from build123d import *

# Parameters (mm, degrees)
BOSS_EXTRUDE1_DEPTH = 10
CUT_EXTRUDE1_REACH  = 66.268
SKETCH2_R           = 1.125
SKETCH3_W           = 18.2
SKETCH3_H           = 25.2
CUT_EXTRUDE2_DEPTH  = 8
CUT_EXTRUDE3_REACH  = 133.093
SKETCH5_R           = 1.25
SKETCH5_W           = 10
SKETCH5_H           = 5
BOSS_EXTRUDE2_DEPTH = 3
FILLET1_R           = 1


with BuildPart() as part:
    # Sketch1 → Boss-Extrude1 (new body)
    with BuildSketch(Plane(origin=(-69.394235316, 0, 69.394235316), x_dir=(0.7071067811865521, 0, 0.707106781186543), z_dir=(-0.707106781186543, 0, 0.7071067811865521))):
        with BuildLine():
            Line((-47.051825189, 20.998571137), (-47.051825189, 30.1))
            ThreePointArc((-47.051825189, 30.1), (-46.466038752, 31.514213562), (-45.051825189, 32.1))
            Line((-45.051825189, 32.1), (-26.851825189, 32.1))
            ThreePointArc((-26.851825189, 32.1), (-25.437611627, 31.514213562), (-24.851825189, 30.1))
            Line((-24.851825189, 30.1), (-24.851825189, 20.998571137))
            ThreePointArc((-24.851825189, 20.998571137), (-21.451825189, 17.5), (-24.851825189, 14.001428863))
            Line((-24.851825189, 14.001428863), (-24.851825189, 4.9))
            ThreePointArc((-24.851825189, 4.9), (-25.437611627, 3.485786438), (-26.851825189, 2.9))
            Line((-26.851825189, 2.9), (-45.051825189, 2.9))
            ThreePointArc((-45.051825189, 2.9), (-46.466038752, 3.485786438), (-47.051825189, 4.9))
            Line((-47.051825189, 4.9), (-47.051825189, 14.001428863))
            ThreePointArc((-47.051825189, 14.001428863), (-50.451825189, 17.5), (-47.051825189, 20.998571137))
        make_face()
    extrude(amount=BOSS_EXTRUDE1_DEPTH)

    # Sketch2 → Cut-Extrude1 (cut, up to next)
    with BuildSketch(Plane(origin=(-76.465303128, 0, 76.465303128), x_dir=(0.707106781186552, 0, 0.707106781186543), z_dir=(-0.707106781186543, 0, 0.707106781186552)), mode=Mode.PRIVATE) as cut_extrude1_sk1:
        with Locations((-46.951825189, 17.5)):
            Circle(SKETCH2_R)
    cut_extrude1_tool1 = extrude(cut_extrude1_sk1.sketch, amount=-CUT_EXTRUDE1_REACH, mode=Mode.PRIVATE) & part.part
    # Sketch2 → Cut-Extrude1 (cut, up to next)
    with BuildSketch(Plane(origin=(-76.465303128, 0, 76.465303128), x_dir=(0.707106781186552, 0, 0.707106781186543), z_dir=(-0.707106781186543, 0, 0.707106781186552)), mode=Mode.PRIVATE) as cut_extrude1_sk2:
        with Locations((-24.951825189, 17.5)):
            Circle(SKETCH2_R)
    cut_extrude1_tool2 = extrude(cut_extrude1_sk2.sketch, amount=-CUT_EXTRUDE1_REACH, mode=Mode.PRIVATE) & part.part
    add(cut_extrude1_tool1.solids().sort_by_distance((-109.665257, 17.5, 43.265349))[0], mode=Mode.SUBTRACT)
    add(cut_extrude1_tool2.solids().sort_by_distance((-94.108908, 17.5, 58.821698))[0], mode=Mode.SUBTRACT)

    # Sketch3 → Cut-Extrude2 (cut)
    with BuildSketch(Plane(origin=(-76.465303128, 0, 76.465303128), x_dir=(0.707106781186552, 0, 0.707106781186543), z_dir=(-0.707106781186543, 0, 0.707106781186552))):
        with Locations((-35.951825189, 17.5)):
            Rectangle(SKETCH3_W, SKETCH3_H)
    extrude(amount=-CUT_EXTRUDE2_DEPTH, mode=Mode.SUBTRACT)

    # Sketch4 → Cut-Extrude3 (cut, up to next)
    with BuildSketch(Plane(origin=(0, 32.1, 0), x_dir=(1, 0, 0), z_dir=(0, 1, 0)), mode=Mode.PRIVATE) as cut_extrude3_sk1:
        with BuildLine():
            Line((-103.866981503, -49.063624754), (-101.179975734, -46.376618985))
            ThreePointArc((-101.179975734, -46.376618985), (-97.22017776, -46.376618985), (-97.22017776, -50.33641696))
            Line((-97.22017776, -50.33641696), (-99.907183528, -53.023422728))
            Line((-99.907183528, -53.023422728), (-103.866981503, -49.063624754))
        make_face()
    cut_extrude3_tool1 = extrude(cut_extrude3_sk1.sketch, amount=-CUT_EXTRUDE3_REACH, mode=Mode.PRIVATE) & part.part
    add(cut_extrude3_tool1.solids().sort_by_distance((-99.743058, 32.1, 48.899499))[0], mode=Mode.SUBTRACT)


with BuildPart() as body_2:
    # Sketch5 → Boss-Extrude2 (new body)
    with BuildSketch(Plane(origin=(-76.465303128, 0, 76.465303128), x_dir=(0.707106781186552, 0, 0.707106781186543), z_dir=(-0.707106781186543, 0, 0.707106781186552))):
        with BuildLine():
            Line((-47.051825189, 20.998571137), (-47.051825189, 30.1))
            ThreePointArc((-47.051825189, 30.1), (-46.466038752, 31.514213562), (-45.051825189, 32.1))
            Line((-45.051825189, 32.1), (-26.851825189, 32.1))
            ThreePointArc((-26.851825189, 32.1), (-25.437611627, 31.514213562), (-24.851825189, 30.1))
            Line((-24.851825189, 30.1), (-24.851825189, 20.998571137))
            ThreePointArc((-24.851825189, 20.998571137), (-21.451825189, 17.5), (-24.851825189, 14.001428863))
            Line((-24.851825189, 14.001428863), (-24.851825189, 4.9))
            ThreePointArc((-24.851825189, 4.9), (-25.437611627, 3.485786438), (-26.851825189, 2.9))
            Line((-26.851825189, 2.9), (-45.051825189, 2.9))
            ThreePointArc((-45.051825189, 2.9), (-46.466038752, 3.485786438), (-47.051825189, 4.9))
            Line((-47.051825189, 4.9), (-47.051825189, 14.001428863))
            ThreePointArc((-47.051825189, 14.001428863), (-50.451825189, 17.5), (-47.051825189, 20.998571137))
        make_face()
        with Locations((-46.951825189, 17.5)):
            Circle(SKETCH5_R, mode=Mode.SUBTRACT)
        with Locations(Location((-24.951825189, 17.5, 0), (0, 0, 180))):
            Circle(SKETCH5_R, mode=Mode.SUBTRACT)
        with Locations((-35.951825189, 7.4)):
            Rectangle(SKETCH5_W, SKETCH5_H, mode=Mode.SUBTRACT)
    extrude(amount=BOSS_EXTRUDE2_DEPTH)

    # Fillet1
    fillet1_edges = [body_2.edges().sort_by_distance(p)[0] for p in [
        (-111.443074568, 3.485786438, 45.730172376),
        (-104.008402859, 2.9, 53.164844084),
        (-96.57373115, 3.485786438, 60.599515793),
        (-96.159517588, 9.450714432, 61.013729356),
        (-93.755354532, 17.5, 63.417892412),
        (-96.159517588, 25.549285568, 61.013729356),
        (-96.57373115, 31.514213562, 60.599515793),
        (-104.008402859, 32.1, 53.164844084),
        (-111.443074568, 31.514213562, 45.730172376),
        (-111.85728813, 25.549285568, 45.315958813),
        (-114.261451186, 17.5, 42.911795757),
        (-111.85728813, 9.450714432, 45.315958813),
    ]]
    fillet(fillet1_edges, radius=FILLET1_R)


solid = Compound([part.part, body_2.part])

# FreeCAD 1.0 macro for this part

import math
import FreeCAD as App
import Part
import Sketcher

V = App.Vector
Q = App.Units.Quantity


def edges_at(feature, points):
    """Names of the edges that pass closest to the given points."""
    edges = feature.Shape.Edges
    near = lambda p: min(range(len(edges)), key=lambda i: edges[i].distToShape(Part.Vertex(*p))[0])
    return sorted({f"Edge{near(p) + 1}" for p in points})


def add_polygon(sketch, points):
    """Adds a closed chain of lines whose ends are joined by coincident constraints."""
    first, n = sketch.GeometryCount, len(points)
    for a, b in zip(points, points[1:] + points[:1]):
        sketch.addGeometry(Part.LineSegment(App.Vector(*a, 0), App.Vector(*b, 0)), False)
    for i in range(n):
        sketch.addConstraint(Sketcher.Constraint("Coincident", first + i, 2, first + (i + 1) % n, 1))

doc = App.newDocument("Part")
params = doc.addObject("Spreadsheet::Sheet", "Params")
for row, (alias, value) in enumerate([
    ("sketch1_radius", "2 mm"),
    ("sketch1_radius2", "3.5 mm"),
    ("sketch1_width", "18.2 mm"),
    ("pad1_length", "10 mm"),
    ("sketch2_diameter", "2.25 mm"),
    ("sketch3_diameter", "2.25 mm"),
    ("sketch4_width", "18.2 mm"),
    ("sketch4_height", "25.2 mm"),
    ("pocket3_length", "8 mm"),
    ("sketch5_radius", "2.8 mm"),
    ("sketch5_length", "3.8 mm"),
    ("sketch6_radius", "2 mm"),
    ("sketch6_diameter", "2.5 mm"),
    ("sketch6_radius2", "3.5 mm"),
    ("sketch6_width", "10 mm"),
    ("sketch6_height", "5 mm"),
    ("pad2_length", "3 mm"),
    ("fillet_radius", "1 mm"),
], start=1):
    params.set(f"A{row}", alias)
    params.set(f"B{row}", "=" + value)
    params.setAlias(f"B{row}", alias)

body = doc.addObject("PartDesign::Body", "Body")

# Sketch on an angled plane
sketch1 = body.newObject("Sketcher::SketchObject", "Sketch")
sketch1.Placement = App.Placement(V(-69.394235, 0, 69.394235), App.Rotation(V(0.707106781, 0, 0.707106781), V(0, 0.999999999, 0), V(-0.707106781, 0, 0.707106781), "ZXY"))
sketch1.addGeometry(Part.LineSegment(V(-47.051825, 30.1, 0), V(-47.051825, 20.998571, 0)), False)
sketch1.addGeometry(Part.ArcOfCircle(Part.Circle(V(-46.951825, 17.5, 0), V(0, 0, 1), 3.5), math.radians(91.637245), math.radians(268.362755)), False)
sketch1.addGeometry(Part.LineSegment(V(-47.051825, 14.001429, 0), V(-47.051825, 4.9, 0)), False)
sketch1.addGeometry(Part.ArcOfCircle(Part.Circle(V(-45.051825, 4.9, 0), V(0, 0, 1), 2), math.radians(180), math.radians(270)), False)
sketch1.addGeometry(Part.LineSegment(V(-45.051825, 2.9, 0), V(-26.851825, 2.9, 0)), False)
sketch1.addGeometry(Part.ArcOfCircle(Part.Circle(V(-26.851825, 4.9, 0), V(0, 0, 1), 2), math.radians(-90), math.radians(0)), False)
sketch1.addGeometry(Part.LineSegment(V(-24.851825, 4.9, 0), V(-24.851825, 14.001429, 0)), False)
sketch1.addGeometry(Part.ArcOfCircle(Part.Circle(V(-24.951825, 17.5, 0), V(0, 0, 1), 3.5), math.radians(-88.362755), math.radians(88.362755)), False)
sketch1.addGeometry(Part.LineSegment(V(-24.851825, 20.998571, 0), V(-24.851825, 30.1, 0)), False)
sketch1.addGeometry(Part.ArcOfCircle(Part.Circle(V(-26.851825, 30.1, 0), V(0, 0, 1), 2), math.radians(0), math.radians(90)), False)
sketch1.addGeometry(Part.LineSegment(V(-26.851825, 32.1, 0), V(-45.051825, 32.1, 0)), False)
sketch1.addGeometry(Part.ArcOfCircle(Part.Circle(V(-45.051825, 30.1, 0), V(0, 0, 1), 2), math.radians(90), math.radians(180)), False)
sketch1.addConstraint(Sketcher.Constraint("Coincident", 0, 2, 1, 1))
sketch1.addConstraint(Sketcher.Constraint("Coincident", 1, 2, 2, 1))
sketch1.addConstraint(Sketcher.Constraint("Tangent", 2, 2, 3, 1))
sketch1.addConstraint(Sketcher.Constraint("Tangent", 3, 2, 4, 1))
sketch1.addConstraint(Sketcher.Constraint("Tangent", 4, 2, 5, 1))
sketch1.addConstraint(Sketcher.Constraint("Tangent", 5, 2, 6, 1))
sketch1.addConstraint(Sketcher.Constraint("Coincident", 6, 2, 7, 1))
sketch1.addConstraint(Sketcher.Constraint("Coincident", 7, 2, 8, 1))
sketch1.addConstraint(Sketcher.Constraint("Tangent", 8, 2, 9, 1))
sketch1.addConstraint(Sketcher.Constraint("Tangent", 9, 2, 10, 1))
sketch1.addConstraint(Sketcher.Constraint("Tangent", 10, 2, 11, 1))
sketch1.addConstraint(Sketcher.Constraint("Tangent", 11, 2, 0, 1))
sketch1.addConstraint(Sketcher.Constraint("Vertical", 0))
sketch1.addConstraint(Sketcher.Constraint("Vertical", 2))
sketch1.addConstraint(Sketcher.Constraint("Horizontal", 4))
sketch1.addConstraint(Sketcher.Constraint("Vertical", 6))
sketch1.addConstraint(Sketcher.Constraint("Vertical", 8))
sketch1.addConstraint(Sketcher.Constraint("Horizontal", 10))
sketch1.addConstraint(Sketcher.Constraint("Equal", 3, 5))
sketch1.addConstraint(Sketcher.Constraint("Equal", 1, 7))
sketch1.addConstraint(Sketcher.Constraint("Equal", 5, 9))
sketch1.addConstraint(Sketcher.Constraint("Equal", 9, 11))
sketch1.addConstraint(Sketcher.Constraint("Horizontal", 1, 3, 7, 3))
sketch1.addConstraint(Sketcher.Constraint("Horizontal", 1, 2, 6, 2))
sketch1.addConstraint(Sketcher.Constraint("Horizontal", 0, 2, 7, 2))
sketch1.addConstraint(Sketcher.Constraint("Vertical", 5, 3, 9, 3))
sketch1.addConstraint(Sketcher.Constraint("Equal", 0, 2))
sketch1.addConstraint(Sketcher.Constraint("Radius", 3, 2.0))
sketch1.addConstraint(Sketcher.Constraint("Radius", 1, 3.5))
sketch1.addConstraint(Sketcher.Constraint("DistanceX", 4, 1, 4, 2, 18.2))
sketch1.addConstraint(Sketcher.Constraint("DistanceX", 1, 3, 7, 3, 22.0))
sketch1.addConstraint(Sketcher.Constraint("DistanceY", -1, 1, 1, 3, 17.5))
sketch1.addConstraint(Sketcher.Constraint("DistanceY", -1, 1, 3, 3, 4.9))
sketch1.addConstraint(Sketcher.Constraint("DistanceX", 1, 3, -1, 1, 46.951825))
sketch1.setExpression("Constraints[27]", "Params.sketch1_radius")
sketch1.setExpression("Constraints[28]", "Params.sketch1_radius2")
sketch1.setExpression("Constraints[29]", "Params.sketch1_width")
pad1 = body.newObject("PartDesign::Pad", "Pad")
pad1.Profile = sketch1
pad1.setExpression("Length", "Params.pad1_length")

# Sketch on an angled plane
sketch2 = body.newObject("Sketcher::SketchObject", "Sketch001")
sketch2.Placement = App.Placement(V(-76.465303, 0, 76.465303), App.Rotation(V(0.707106781, 0, 0.707106781), V(0, 0.999999999, 0), V(-0.707106781, 0, 0.707106781), "ZXY"))
sketch2.addGeometry(Part.Circle(V(-46.951825, 17.5, 0), V(0, 0, 1), 1.125), False)
sketch2.addConstraint(Sketcher.Constraint("Diameter", 0, 2.25))
sketch2.addConstraint(Sketcher.Constraint("DistanceY", -1, 1, 0, 3, 17.5))
sketch2.addConstraint(Sketcher.Constraint("DistanceX", 0, 3, -1, 1, 46.951825))
sketch2.setExpression("Constraints[0]", "Params.sketch2_diameter")
pocket1 = body.newObject("PartDesign::Pocket", "Pocket")
pocket1.Profile = sketch2
pocket1.Type = "UpToFirst"

# Sketch on an angled plane
sketch3 = body.newObject("Sketcher::SketchObject", "Sketch002")
sketch3.Placement = App.Placement(V(-76.465303, 0, 76.465303), App.Rotation(V(0.707106781, 0, 0.707106781), V(0, 0.999999999, 0), V(-0.707106781, 0, 0.707106781), "ZXY"))
sketch3.addGeometry(Part.Circle(V(-24.951825, 17.5, 0), V(0, 0, 1), 1.125), False)
sketch3.addConstraint(Sketcher.Constraint("Diameter", 0, 2.25))
sketch3.addConstraint(Sketcher.Constraint("DistanceY", -1, 1, 0, 3, 17.5))
sketch3.addConstraint(Sketcher.Constraint("DistanceX", 0, 3, -1, 1, 24.951825))
sketch3.setExpression("Constraints[0]", "Params.sketch3_diameter")
pocket2 = body.newObject("PartDesign::Pocket", "Pocket001")
pocket2.Profile = sketch3
pocket2.Type = "UpToFirst"

# Sketch on an angled plane
sketch4 = body.newObject("Sketcher::SketchObject", "Sketch003")
sketch4.Placement = App.Placement(V(-76.465303, 0, 76.465303), App.Rotation(V(0.707106781, 0, 0.707106781), V(0, 0.999999999, 0), V(-0.707106781, 0, 0.707106781), "ZXY"))
add_polygon(sketch4, [(-45.051825, 30.1), (-45.051825, 4.9), (-26.851825, 4.9), (-26.851825, 30.1)])  # lines 0-3
sketch4.addConstraint(Sketcher.Constraint("Vertical", 0))
sketch4.addConstraint(Sketcher.Constraint("Horizontal", 1))
sketch4.addConstraint(Sketcher.Constraint("Vertical", 2))
sketch4.addConstraint(Sketcher.Constraint("Horizontal", 3))
sketch4.addConstraint(Sketcher.Constraint("DistanceX", 1, 1, 1, 2, 18.2))
sketch4.addConstraint(Sketcher.Constraint("DistanceY", 0, 2, 0, 1, 25.2))
sketch4.addConstraint(Sketcher.Constraint("DistanceY", -1, 1, 0, 2, 4.9))
sketch4.addConstraint(Sketcher.Constraint("DistanceX", 0, 2, -1, 1, 45.051825))
sketch4.setExpression("Constraints[8]", "Params.sketch4_width")
sketch4.setExpression("Constraints[9]", "Params.sketch4_height")
pocket3 = body.newObject("PartDesign::Pocket", "Pocket002")
pocket3.Profile = sketch4
pocket3.setExpression("Length", "Params.pocket3_length")

# Sketch on XZ plane
sketch5 = body.newObject("Sketcher::SketchObject", "Sketch004")
sketch5.AttachmentSupport = (doc.getObject("XZ_Plane"), [""])
sketch5.MapMode = "FlatFace"
sketch5.AttachmentOffset = App.Placement(V(0, 0, -32.1), App.Rotation())
sketch5.addGeometry(Part.LineSegment(V(-101.179976, 46.376619, 0), V(-103.866982, 49.063625, 0)), False)
sketch5.addGeometry(Part.LineSegment(V(-103.866982, 49.063625, 0), V(-99.907184, 53.023423, 0)), False)
sketch5.addGeometry(Part.LineSegment(V(-99.907184, 53.023423, 0), V(-97.220178, 50.336417, 0)), False)
sketch5.addGeometry(Part.ArcOfCircle(Part.Circle(V(-99.200077, 48.356518, 0), V(0, 0, 1), 2.8), math.radians(-135), math.radians(45)), False)
sketch5.addConstraint(Sketcher.Constraint("Coincident", 0, 2, 1, 1))
sketch5.addConstraint(Sketcher.Constraint("Coincident", 1, 2, 2, 1))
sketch5.addConstraint(Sketcher.Constraint("Tangent", 2, 2, 3, 2))
sketch5.addConstraint(Sketcher.Constraint("Tangent", 3, 1, 0, 1))
sketch5.addConstraint(Sketcher.Constraint("Perpendicular", 0, 1))
sketch5.addConstraint(Sketcher.Constraint("Perpendicular", 1, 2))
sketch5.addConstraint(Sketcher.Constraint("Radius", 3, 2.8))
sketch5.addConstraint(Sketcher.Constraint("Angle", 0, Q("135 deg")))
sketch5.addConstraint(Sketcher.Constraint("Distance", 0, 3.8))
sketch5.addConstraint(Sketcher.Constraint("DistanceX", 0, 2, -1, 1, 103.866982))
sketch5.addConstraint(Sketcher.Constraint("DistanceY", -1, 1, 3, 1, 46.376619))
sketch5.setExpression("Constraints[6]", "Params.sketch5_radius")
sketch5.setExpression("Constraints[8]", "Params.sketch5_length")
pocket4 = body.newObject("PartDesign::Pocket", "Pocket003")
pocket4.Profile = sketch5
pocket4.Type = "UpToFirst"
pocket4.Reversed = True
body2 = doc.addObject("PartDesign::Body", "Body001")

# Sketch on an angled plane
sketch6 = body2.newObject("Sketcher::SketchObject", "Sketch005")
sketch6.Placement = App.Placement(V(-76.465303, 0, 76.465303), App.Rotation(V(0.707106781, 0, 0.707106781), V(0, 0.999999999, 0), V(-0.707106781, 0, 0.707106781), "ZXY"))
sketch6.addGeometry(Part.LineSegment(V(-47.051825, 30.1, 0), V(-47.051825, 20.998571, 0)), False)  # 0
sketch6.addGeometry(Part.ArcOfCircle(Part.Circle(V(-46.951825, 17.5, 0), V(0, 0, 1), 3.5), math.radians(91.637245), math.radians(268.362755)), False)  # 1
sketch6.addGeometry(Part.LineSegment(V(-47.051825, 14.001429, 0), V(-47.051825, 4.9, 0)), False)  # 2
sketch6.addGeometry(Part.ArcOfCircle(Part.Circle(V(-45.051825, 4.9, 0), V(0, 0, 1), 2), math.radians(180), math.radians(270)), False)  # 3
sketch6.addGeometry(Part.LineSegment(V(-45.051825, 2.9, 0), V(-26.851825, 2.9, 0)), False)  # 4
sketch6.addGeometry(Part.ArcOfCircle(Part.Circle(V(-26.851825, 4.9, 0), V(0, 0, 1), 2), math.radians(-90), math.radians(0)), False)  # 5
sketch6.addGeometry(Part.LineSegment(V(-24.851825, 4.9, 0), V(-24.851825, 14.001429, 0)), False)  # 6
sketch6.addGeometry(Part.ArcOfCircle(Part.Circle(V(-24.951825, 17.5, 0), V(0, 0, 1), 3.5), math.radians(-88.362755), math.radians(88.362755)), False)  # 7
sketch6.addGeometry(Part.LineSegment(V(-24.851825, 20.998571, 0), V(-24.851825, 30.1, 0)), False)  # 8
sketch6.addGeometry(Part.ArcOfCircle(Part.Circle(V(-26.851825, 30.1, 0), V(0, 0, 1), 2), math.radians(0), math.radians(90)), False)  # 9
sketch6.addGeometry(Part.LineSegment(V(-26.851825, 32.1, 0), V(-45.051825, 32.1, 0)), False)  # 10
sketch6.addGeometry(Part.ArcOfCircle(Part.Circle(V(-45.051825, 30.1, 0), V(0, 0, 1), 2), math.radians(90), math.radians(180)), False)  # 11
add_polygon(sketch6, [(-40.951825, 4.9), (-40.951825, 9.9), (-30.951825, 9.9), (-30.951825, 4.9)])  # lines 12-15
sketch6.addGeometry(Part.Circle(V(-24.951825, 17.5, 0), V(0, 0, 1), 1.25), False)  # 16
sketch6.addGeometry(Part.Circle(V(-46.951825, 17.5, 0), V(0, 0, 1), 1.25), False)  # 17
sketch6.addConstraint(Sketcher.Constraint("Coincident", 0, 2, 1, 1))
sketch6.addConstraint(Sketcher.Constraint("Coincident", 1, 2, 2, 1))
sketch6.addConstraint(Sketcher.Constraint("Tangent", 2, 2, 3, 1))
sketch6.addConstraint(Sketcher.Constraint("Tangent", 3, 2, 4, 1))
sketch6.addConstraint(Sketcher.Constraint("Tangent", 4, 2, 5, 1))
sketch6.addConstraint(Sketcher.Constraint("Tangent", 5, 2, 6, 1))
sketch6.addConstraint(Sketcher.Constraint("Coincident", 6, 2, 7, 1))
sketch6.addConstraint(Sketcher.Constraint("Coincident", 7, 2, 8, 1))
sketch6.addConstraint(Sketcher.Constraint("Tangent", 8, 2, 9, 1))
sketch6.addConstraint(Sketcher.Constraint("Tangent", 9, 2, 10, 1))
sketch6.addConstraint(Sketcher.Constraint("Tangent", 10, 2, 11, 1))
sketch6.addConstraint(Sketcher.Constraint("Tangent", 11, 2, 0, 1))
sketch6.addConstraint(Sketcher.Constraint("Vertical", 0))
sketch6.addConstraint(Sketcher.Constraint("Vertical", 2))
sketch6.addConstraint(Sketcher.Constraint("Horizontal", 4))
sketch6.addConstraint(Sketcher.Constraint("Vertical", 6))
sketch6.addConstraint(Sketcher.Constraint("Vertical", 8))
sketch6.addConstraint(Sketcher.Constraint("Horizontal", 10))
sketch6.addConstraint(Sketcher.Constraint("Vertical", 12))
sketch6.addConstraint(Sketcher.Constraint("Horizontal", 13))
sketch6.addConstraint(Sketcher.Constraint("Vertical", 14))
sketch6.addConstraint(Sketcher.Constraint("Horizontal", 15))
sketch6.addConstraint(Sketcher.Constraint("Coincident", 16, 3, 7, 3))
sketch6.addConstraint(Sketcher.Constraint("Coincident", 17, 3, 1, 3))
sketch6.addConstraint(Sketcher.Constraint("Equal", 3, 5))
sketch6.addConstraint(Sketcher.Constraint("Equal", 1, 7))
sketch6.addConstraint(Sketcher.Constraint("Equal", 5, 9))
sketch6.addConstraint(Sketcher.Constraint("Equal", 9, 11))
sketch6.addConstraint(Sketcher.Constraint("Equal", 16, 17))
sketch6.addConstraint(Sketcher.Constraint("Horizontal", 1, 3, 7, 3))
sketch6.addConstraint(Sketcher.Constraint("Horizontal", 1, 2, 6, 2))
sketch6.addConstraint(Sketcher.Constraint("Horizontal", 0, 2, 7, 2))
sketch6.addConstraint(Sketcher.Constraint("Horizontal", 5, 2, 14, 2))
sketch6.addConstraint(Sketcher.Constraint("Vertical", 5, 3, 9, 3))
sketch6.addConstraint(Sketcher.Constraint("Equal", 0, 2))
sketch6.addConstraint(Sketcher.Constraint("Radius", 3, 2.0))
sketch6.addConstraint(Sketcher.Constraint("Diameter", 16, 2.5))
sketch6.addConstraint(Sketcher.Constraint("Radius", 1, 3.5))
sketch6.addConstraint(Sketcher.Constraint("DistanceX", 13, 1, 13, 2, 10.0))
sketch6.addConstraint(Sketcher.Constraint("DistanceY", 12, 1, 12, 2, 5.0))
sketch6.addConstraint(Sketcher.Constraint("DistanceX", 4, 1, 4, 2, 18.2))
sketch6.addConstraint(Sketcher.Constraint("DistanceX", 1, 3, 7, 3, 22.0))
sketch6.addConstraint(Sketcher.Constraint("DistanceX", 1, 3, 12, 2, 6.0))
sketch6.addConstraint(Sketcher.Constraint("DistanceY", -1, 1, 1, 3, 17.5))
sketch6.addConstraint(Sketcher.Constraint("DistanceY", -1, 1, 3, 3, 4.9))
sketch6.addConstraint(Sketcher.Constraint("DistanceX", 1, 3, -1, 1, 46.951825))
sketch6.setExpression("Constraints[39]", "Params.sketch6_radius")
sketch6.setExpression("Constraints[40]", "Params.sketch6_diameter")
sketch6.setExpression("Constraints[41]", "Params.sketch6_radius2")
sketch6.setExpression("Constraints[42]", "Params.sketch6_width")
sketch6.setExpression("Constraints[43]", "Params.sketch6_height")
pad2 = body2.newObject("PartDesign::Pad", "Pad001")
pad2.Profile = sketch6
pad2.setExpression("Length", "Params.pad2_length")
doc.recompute()

fillet = body2.newObject("PartDesign::Fillet", "Fillet")
fillet.Base = (pad2, edges_at(pad2, [
    (-111.443, 3.486, 45.73),
    (-104.008, 2.9, 53.165),
    (-96.574, 3.486, 60.6),
    (-96.16, 9.451, 61.014),
    (-93.755, 17.5, 63.418),
    (-96.16, 25.549, 61.014),
    (-96.574, 31.514, 60.6),
    (-104.008, 32.1, 53.165),
    (-111.443, 31.514, 45.73),
    (-111.857, 25.549, 45.316),
    (-114.261, 17.5, 42.912),
    (-111.857, 9.451, 45.316),
]))
fillet.setExpression("Radius", "Params.fillet_radius")

doc.recompute()
